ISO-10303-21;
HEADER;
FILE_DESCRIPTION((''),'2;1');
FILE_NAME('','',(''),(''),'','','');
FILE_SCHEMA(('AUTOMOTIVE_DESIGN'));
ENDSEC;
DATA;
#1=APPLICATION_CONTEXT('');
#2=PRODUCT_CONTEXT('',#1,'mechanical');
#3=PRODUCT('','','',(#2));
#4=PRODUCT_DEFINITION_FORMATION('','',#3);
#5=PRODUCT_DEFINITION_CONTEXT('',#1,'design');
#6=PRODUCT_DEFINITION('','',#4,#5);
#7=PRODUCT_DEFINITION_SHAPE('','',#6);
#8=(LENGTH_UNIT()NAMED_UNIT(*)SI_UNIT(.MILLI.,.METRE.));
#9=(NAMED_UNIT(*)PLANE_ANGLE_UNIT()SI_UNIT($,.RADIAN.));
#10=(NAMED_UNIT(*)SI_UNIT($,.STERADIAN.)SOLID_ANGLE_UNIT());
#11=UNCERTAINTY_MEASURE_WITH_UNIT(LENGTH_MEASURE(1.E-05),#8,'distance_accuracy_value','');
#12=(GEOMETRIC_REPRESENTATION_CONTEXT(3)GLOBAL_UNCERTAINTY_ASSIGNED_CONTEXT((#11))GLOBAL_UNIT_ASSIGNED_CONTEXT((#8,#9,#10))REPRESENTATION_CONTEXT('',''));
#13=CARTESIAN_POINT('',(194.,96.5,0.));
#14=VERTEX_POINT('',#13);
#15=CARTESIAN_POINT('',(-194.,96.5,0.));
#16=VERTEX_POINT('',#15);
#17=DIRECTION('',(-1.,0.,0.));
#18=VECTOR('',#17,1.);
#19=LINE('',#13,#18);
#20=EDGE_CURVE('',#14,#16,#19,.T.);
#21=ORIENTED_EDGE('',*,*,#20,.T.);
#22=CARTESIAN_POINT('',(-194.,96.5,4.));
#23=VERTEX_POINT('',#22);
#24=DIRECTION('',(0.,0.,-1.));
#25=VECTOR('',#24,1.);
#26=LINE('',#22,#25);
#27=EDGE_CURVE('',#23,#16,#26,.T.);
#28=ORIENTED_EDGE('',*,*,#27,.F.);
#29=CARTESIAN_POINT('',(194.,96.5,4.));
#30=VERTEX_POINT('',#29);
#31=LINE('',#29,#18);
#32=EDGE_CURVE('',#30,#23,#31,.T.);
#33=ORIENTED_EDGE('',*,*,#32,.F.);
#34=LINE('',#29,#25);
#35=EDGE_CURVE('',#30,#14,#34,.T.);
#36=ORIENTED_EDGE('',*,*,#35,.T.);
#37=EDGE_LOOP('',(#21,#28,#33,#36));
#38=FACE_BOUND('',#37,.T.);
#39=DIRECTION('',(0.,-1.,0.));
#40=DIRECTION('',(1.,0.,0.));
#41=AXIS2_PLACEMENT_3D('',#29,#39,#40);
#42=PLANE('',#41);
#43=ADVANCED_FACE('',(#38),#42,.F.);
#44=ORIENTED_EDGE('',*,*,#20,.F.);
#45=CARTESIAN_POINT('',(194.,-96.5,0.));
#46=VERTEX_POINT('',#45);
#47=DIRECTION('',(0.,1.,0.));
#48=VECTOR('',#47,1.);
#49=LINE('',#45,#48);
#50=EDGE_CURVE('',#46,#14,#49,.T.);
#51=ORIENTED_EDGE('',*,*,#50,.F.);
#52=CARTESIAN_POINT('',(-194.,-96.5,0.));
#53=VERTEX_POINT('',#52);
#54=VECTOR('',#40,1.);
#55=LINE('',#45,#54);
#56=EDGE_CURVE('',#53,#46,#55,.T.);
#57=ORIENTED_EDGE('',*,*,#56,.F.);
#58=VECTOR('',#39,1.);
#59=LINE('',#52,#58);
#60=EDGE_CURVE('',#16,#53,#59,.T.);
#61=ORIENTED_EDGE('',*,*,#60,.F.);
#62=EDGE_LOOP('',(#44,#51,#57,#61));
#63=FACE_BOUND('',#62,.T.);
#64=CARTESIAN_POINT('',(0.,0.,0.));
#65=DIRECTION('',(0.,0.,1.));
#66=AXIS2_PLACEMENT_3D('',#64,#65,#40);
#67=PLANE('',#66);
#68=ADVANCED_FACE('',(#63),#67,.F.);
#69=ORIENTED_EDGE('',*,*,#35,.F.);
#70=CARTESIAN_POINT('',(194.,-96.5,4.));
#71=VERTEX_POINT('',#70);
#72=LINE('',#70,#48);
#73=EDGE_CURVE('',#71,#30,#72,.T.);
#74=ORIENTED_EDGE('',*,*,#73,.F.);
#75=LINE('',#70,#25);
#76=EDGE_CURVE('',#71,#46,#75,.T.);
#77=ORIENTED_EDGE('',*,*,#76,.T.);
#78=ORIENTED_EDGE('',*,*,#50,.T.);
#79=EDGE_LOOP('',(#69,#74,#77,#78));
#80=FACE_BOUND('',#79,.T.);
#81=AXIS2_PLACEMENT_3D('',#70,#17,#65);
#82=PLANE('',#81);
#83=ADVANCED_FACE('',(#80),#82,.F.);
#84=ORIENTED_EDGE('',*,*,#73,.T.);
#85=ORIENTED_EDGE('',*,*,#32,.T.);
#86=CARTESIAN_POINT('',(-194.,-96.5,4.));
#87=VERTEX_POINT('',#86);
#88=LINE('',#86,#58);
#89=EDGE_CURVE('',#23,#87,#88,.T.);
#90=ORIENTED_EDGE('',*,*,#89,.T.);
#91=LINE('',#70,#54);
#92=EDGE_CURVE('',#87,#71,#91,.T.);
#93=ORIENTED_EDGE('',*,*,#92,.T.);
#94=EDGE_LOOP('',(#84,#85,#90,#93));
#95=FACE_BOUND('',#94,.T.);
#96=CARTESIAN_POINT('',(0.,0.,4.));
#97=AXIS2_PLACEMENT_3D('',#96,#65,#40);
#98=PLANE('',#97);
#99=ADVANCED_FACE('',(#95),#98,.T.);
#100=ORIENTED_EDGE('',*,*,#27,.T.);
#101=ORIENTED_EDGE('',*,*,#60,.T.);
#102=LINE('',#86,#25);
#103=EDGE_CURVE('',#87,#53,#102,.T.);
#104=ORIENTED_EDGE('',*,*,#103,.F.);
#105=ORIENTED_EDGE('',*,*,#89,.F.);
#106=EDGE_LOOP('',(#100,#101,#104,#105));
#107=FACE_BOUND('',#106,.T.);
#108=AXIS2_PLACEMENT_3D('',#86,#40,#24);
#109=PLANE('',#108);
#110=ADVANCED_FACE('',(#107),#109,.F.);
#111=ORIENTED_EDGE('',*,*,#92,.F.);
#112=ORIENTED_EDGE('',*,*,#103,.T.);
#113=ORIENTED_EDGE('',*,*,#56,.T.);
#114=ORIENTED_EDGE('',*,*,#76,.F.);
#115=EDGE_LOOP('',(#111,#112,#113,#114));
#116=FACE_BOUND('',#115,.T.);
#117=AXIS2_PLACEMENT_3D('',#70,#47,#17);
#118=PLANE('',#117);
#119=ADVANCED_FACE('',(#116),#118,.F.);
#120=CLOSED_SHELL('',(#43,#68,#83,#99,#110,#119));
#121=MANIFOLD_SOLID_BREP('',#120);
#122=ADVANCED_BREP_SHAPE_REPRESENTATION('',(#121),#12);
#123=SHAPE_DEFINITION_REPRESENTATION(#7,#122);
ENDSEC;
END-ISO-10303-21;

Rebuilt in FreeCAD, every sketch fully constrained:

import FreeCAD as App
import Part
import Sketcher

V = App.Vector


def add_polygon(sketch, points):
    """Adds a closed chain of lines whose ends are joined by coincident constraints."""
    first, n = sketch.GeometryCount, len(points)
    for a, b in zip(points, points[1:] + points[:1]):
        sketch.addGeometry(Part.LineSegment(App.Vector(*a, 0), App.Vector(*b, 0)), False)
    for i in range(n):
        sketch.addConstraint(Sketcher.Constraint("Coincident", first + i, 2, first + (i + 1) % n, 1))

doc = App.newDocument("Part")
body = doc.addObject("PartDesign::Body", "Body")

# Sketch on XY plane
sketch1 = doc.addObject("Sketcher::SketchObject", "Sketch")
body.addObject(sketch1)
sketch1.AttachmentSupport = (doc.XY_Plane, [""])
sketch1.MapMode = "FlatFace"
add_polygon(sketch1, [(-194, 96), (-194, -96), (194, -96), (194, 96)])  # lines 0-3
sketch1.addConstraint([
    Sketcher.Constraint("Vertical", 0),
    Sketcher.Constraint("Horizontal", 1),
    Sketcher.Constraint("Vertical", 2),
    Sketcher.Constraint("Horizontal", 3),
    Sketcher.Constraint("Symmetric", 0, 2, 2, 2, -1, 1),
    Sketcher.Constraint("DistanceX", 1, 1, 1, 2, 388.0),
    Sketcher.Constraint("DistanceY", 0, 2, 0, 1, 193.0),
])
pad1 = doc.addObject("PartDesign::Pad", "Pad")
body.addObject(pad1)
pad1.Profile = sketch1
pad1.Length = 4

doc.recompute()
